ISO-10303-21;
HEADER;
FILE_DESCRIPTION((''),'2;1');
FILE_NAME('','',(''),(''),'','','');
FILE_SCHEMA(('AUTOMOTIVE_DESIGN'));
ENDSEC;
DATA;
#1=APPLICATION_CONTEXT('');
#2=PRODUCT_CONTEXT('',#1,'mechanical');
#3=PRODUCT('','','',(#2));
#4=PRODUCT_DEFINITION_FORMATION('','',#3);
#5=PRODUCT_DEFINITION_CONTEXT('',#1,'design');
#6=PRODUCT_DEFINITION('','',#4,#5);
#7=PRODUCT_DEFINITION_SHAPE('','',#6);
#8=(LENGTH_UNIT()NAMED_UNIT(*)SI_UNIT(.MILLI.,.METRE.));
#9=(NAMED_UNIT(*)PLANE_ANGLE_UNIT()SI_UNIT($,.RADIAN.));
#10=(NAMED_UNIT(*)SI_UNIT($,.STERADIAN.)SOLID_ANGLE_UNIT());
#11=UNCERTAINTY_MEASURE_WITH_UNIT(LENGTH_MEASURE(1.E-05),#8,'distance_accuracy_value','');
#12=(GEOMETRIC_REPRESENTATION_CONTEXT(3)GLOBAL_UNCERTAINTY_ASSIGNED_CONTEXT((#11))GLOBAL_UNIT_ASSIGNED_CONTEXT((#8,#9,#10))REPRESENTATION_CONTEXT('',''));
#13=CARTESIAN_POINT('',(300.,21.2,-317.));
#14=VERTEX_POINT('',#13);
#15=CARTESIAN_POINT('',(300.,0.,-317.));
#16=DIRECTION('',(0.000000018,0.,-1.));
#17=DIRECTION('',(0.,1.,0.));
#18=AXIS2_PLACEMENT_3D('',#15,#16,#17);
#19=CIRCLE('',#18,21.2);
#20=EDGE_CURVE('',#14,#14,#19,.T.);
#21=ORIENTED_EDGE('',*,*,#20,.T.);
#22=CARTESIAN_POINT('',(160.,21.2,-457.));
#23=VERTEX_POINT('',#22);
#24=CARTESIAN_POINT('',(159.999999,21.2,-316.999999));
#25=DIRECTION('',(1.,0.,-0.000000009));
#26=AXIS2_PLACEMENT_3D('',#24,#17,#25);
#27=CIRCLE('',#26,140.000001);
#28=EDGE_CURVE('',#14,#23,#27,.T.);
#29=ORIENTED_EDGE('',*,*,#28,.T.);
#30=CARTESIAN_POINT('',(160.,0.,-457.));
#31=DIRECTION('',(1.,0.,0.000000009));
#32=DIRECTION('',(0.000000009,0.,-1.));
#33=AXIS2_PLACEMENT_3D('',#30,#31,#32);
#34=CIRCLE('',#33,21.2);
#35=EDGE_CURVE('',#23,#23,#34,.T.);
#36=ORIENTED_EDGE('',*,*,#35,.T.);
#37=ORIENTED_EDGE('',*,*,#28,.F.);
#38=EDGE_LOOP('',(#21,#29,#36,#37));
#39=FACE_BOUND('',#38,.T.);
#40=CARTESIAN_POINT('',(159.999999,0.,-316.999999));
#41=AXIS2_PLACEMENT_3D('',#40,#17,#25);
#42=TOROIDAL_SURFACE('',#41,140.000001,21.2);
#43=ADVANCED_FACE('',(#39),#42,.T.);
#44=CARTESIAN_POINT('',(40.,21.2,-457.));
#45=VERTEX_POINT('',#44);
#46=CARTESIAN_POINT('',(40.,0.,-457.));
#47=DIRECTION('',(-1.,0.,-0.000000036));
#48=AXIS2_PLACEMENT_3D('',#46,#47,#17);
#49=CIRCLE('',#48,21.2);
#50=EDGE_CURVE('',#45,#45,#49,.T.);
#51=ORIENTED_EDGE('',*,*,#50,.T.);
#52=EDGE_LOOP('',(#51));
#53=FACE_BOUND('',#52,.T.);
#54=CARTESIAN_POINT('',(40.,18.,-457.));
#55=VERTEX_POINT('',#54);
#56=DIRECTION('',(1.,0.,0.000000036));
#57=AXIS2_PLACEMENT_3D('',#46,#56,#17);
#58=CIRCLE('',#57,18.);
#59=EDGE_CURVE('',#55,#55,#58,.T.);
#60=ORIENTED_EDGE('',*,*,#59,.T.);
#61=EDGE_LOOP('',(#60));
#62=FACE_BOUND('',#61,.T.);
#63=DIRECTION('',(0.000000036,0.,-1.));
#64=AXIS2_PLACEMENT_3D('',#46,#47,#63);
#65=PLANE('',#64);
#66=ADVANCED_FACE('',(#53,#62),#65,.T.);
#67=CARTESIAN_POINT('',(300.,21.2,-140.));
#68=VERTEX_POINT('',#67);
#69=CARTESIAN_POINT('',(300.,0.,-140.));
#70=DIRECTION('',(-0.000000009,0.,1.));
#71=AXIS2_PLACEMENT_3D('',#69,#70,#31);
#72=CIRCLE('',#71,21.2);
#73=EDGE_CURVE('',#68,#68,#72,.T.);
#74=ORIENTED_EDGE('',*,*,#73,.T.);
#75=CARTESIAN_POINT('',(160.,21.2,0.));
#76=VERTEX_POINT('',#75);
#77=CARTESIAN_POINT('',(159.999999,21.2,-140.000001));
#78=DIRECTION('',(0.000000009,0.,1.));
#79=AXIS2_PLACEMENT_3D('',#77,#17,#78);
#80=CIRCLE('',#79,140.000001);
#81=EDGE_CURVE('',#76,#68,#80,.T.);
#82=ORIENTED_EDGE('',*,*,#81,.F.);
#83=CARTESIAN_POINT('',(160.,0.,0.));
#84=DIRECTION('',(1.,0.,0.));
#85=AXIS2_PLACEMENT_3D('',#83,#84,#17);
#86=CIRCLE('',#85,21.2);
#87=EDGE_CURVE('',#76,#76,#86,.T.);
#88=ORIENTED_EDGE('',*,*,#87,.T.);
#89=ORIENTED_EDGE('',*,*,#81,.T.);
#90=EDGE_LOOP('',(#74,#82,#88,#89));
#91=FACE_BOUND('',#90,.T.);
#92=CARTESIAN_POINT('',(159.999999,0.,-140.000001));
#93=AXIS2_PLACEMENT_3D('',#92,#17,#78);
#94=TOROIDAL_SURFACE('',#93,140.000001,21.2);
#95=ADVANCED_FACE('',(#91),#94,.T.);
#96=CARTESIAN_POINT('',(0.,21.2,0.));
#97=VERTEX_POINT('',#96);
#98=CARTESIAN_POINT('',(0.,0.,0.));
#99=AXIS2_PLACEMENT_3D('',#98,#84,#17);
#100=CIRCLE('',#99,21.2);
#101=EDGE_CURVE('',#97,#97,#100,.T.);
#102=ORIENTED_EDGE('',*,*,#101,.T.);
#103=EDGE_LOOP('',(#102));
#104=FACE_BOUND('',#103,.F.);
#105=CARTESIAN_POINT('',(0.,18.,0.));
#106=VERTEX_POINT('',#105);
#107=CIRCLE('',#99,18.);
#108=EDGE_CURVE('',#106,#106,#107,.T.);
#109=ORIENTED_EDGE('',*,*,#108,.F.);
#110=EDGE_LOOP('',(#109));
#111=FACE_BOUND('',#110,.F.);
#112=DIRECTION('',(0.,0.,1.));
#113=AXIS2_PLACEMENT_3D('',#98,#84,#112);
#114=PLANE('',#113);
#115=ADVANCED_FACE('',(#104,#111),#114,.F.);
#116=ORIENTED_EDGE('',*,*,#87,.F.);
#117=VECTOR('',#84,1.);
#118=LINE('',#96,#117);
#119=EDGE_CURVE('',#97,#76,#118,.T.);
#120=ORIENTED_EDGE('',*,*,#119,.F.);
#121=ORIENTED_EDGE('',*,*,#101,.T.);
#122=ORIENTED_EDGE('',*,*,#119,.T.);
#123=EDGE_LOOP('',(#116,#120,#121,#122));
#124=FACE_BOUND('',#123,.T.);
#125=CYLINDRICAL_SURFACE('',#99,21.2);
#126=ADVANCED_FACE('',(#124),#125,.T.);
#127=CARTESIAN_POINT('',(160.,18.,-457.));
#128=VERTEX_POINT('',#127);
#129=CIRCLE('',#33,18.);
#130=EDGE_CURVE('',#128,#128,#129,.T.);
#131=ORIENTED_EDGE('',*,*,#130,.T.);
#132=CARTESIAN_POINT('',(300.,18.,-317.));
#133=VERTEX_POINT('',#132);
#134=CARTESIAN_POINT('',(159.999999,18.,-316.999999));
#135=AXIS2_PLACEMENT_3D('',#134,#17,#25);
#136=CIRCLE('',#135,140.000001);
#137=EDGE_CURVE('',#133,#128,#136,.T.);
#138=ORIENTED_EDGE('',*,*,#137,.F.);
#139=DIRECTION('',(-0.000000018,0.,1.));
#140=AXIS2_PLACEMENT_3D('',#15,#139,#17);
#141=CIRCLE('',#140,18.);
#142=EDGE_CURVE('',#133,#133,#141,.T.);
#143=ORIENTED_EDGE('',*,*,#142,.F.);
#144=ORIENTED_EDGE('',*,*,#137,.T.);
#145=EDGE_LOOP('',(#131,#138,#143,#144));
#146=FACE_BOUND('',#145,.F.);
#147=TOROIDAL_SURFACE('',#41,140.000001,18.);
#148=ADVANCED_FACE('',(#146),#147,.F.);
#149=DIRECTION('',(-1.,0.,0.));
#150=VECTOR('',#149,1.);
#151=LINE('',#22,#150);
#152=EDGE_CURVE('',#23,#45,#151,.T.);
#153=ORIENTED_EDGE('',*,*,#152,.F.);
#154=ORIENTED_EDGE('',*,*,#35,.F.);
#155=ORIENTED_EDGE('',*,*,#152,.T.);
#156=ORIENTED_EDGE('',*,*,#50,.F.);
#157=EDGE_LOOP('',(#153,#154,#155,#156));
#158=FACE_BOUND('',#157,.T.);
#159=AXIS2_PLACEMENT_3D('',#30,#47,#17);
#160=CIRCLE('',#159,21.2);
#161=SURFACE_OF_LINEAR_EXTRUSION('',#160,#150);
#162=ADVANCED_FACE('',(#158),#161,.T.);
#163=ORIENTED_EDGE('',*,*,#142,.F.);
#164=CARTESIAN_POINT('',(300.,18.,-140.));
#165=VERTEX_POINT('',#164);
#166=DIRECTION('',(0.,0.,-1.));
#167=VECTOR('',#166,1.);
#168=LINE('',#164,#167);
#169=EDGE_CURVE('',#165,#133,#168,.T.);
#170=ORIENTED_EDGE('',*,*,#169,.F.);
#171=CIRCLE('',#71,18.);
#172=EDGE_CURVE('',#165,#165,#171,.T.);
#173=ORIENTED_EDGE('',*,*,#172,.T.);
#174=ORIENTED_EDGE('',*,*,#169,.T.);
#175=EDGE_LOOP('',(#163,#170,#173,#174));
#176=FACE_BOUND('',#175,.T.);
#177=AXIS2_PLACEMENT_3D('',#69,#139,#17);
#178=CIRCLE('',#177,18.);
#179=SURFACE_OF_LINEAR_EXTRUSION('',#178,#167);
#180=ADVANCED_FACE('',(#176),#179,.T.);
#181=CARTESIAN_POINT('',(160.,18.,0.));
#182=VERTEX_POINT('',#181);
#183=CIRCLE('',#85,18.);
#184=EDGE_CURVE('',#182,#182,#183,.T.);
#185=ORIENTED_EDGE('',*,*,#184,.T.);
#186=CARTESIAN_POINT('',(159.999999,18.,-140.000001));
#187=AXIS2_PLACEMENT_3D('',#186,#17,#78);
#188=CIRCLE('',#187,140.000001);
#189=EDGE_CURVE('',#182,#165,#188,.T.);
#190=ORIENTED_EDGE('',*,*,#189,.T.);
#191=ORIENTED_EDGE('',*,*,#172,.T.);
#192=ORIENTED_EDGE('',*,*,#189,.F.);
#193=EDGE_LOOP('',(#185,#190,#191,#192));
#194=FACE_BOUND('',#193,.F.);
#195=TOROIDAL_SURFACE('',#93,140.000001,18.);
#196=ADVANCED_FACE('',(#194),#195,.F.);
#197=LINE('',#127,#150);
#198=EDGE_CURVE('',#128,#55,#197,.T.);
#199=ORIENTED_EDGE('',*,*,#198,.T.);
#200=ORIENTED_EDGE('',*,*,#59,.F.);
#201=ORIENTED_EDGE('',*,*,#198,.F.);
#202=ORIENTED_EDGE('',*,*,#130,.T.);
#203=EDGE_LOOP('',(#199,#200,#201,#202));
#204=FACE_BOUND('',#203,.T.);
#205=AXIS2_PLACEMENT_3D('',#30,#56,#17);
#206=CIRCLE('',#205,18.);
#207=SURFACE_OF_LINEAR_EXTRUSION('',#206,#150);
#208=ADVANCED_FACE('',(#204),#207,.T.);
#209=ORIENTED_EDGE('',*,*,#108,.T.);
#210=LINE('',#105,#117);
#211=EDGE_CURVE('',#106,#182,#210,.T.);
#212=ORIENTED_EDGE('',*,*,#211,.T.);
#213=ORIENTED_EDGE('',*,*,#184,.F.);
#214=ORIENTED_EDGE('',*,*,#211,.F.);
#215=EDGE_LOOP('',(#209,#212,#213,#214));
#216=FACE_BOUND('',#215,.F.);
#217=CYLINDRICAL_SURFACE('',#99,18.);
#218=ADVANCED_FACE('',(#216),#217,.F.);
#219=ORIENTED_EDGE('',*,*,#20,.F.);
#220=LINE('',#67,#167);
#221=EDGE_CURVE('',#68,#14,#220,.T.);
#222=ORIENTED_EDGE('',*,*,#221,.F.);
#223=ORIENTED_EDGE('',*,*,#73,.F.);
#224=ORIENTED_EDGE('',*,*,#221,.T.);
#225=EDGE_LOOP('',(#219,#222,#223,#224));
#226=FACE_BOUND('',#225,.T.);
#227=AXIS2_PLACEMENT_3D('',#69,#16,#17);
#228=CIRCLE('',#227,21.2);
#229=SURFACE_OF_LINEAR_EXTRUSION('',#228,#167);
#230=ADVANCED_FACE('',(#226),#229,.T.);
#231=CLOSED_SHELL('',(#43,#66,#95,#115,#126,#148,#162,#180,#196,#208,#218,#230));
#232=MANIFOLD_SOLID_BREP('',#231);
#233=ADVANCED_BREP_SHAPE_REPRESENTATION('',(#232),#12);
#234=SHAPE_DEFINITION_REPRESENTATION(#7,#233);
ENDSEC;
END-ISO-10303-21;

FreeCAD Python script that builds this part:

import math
import FreeCAD as App
import Part
import Sketcher
Q = App.Units.Quantity

doc = App.newDocument("Part")
body = doc.addObject("PartDesign::Body", "Body")

# Sketch on YZ plane
sketch1 = body.newObject("Sketcher::SketchObject", "Sketch")
sketch1.AttachmentSupport = (doc.getObject("YZ_Plane"), [""])
sketch1.MapMode = "FlatFace"
sketch1.addGeometry(Part.Circle(App.Vector(0, 0, 0), App.Vector(0, 0, 1), 21), False)
sketch1.addGeometry(Part.Circle(App.Vector(0, 0, 0), App.Vector(0, 0, 1), 18), False)
sketch1.addConstraint(Sketcher.Constraint("Coincident", 0, 3, -1, 1))
sketch1.addConstraint(Sketcher.Constraint("Coincident", 1, 3, -1, 1))
sketch1.addConstraint(Sketcher.Constraint("Diameter", 1, Q("36 mm")))
sketch1.addConstraint(Sketcher.Constraint("Diameter", 0, Q("42.4 mm")))

# Sketch on XZ plane
sketch2 = body.newObject("Sketcher::SketchObject", "Sketch001")
sketch2.AttachmentSupport = (doc.getObject("XZ_Plane"), [""])
sketch2.MapMode = "FlatFace"
sketch2.addGeometry(Part.LineSegment(App.Vector(0, 0, 0), App.Vector(160, 0, 0)), False)
sketch2.addGeometry(Part.ArcOfCircle(Part.Circle(App.Vector(160, -140, 0), App.Vector(0, 0, 1), 140), math.radians(0), math.radians(90)), False)
sketch2.addGeometry(Part.LineSegment(App.Vector(300, -140, 0), App.Vector(300, -317, 0)), False)
sketch2.addGeometry(Part.ArcOfCircle(Part.Circle(App.Vector(160, -317, 0), App.Vector(0, 0, 1), 140), math.radians(-90), math.radians(0)), False)
sketch2.addGeometry(Part.LineSegment(App.Vector(160, -457, 0), App.Vector(40, -457, 0)), False)
sketch2.addConstraint(Sketcher.Constraint("Tangent", 0, 2, 1, 2))
sketch2.addConstraint(Sketcher.Constraint("Tangent", 1, 1, 2, 1))
sketch2.addConstraint(Sketcher.Constraint("Tangent", 2, 2, 3, 2))
sketch2.addConstraint(Sketcher.Constraint("Tangent", 3, 1, 4, 1))
sketch2.addConstraint(Sketcher.Constraint("Horizontal", 0))
sketch2.addConstraint(Sketcher.Constraint("Vertical", 2))
sketch2.addConstraint(Sketcher.Constraint("Horizontal", 4))
sketch2.addConstraint(Sketcher.Constraint("Coincident", 0, 1, -1, 1))
sketch2.addConstraint(Sketcher.Constraint("Equal", 1, 3))
sketch2.addConstraint(Sketcher.Constraint("Radius", 1, Q("140.000001 mm")))
sketch2.addConstraint(Sketcher.Constraint("DistanceX", 0, 1, 0, 2, Q("160 mm")))
sketch2.addConstraint(Sketcher.Constraint("DistanceX", 4, 2, 4, 1, Q("120 mm")))
sketch2.addConstraint(Sketcher.Constraint("DistanceY", 2, 2, 2, 1, Q("177 mm")))
doc.recompute()

additivepipe = body.newObject("PartDesign::AdditivePipe", "AdditivePipe")
additivepipe.Profile = sketch1
additivepipe.Spine = (sketch2, ["Edge1", "Edge2", "Edge3", "Edge4", "Edge5"])

doc.recompute()
